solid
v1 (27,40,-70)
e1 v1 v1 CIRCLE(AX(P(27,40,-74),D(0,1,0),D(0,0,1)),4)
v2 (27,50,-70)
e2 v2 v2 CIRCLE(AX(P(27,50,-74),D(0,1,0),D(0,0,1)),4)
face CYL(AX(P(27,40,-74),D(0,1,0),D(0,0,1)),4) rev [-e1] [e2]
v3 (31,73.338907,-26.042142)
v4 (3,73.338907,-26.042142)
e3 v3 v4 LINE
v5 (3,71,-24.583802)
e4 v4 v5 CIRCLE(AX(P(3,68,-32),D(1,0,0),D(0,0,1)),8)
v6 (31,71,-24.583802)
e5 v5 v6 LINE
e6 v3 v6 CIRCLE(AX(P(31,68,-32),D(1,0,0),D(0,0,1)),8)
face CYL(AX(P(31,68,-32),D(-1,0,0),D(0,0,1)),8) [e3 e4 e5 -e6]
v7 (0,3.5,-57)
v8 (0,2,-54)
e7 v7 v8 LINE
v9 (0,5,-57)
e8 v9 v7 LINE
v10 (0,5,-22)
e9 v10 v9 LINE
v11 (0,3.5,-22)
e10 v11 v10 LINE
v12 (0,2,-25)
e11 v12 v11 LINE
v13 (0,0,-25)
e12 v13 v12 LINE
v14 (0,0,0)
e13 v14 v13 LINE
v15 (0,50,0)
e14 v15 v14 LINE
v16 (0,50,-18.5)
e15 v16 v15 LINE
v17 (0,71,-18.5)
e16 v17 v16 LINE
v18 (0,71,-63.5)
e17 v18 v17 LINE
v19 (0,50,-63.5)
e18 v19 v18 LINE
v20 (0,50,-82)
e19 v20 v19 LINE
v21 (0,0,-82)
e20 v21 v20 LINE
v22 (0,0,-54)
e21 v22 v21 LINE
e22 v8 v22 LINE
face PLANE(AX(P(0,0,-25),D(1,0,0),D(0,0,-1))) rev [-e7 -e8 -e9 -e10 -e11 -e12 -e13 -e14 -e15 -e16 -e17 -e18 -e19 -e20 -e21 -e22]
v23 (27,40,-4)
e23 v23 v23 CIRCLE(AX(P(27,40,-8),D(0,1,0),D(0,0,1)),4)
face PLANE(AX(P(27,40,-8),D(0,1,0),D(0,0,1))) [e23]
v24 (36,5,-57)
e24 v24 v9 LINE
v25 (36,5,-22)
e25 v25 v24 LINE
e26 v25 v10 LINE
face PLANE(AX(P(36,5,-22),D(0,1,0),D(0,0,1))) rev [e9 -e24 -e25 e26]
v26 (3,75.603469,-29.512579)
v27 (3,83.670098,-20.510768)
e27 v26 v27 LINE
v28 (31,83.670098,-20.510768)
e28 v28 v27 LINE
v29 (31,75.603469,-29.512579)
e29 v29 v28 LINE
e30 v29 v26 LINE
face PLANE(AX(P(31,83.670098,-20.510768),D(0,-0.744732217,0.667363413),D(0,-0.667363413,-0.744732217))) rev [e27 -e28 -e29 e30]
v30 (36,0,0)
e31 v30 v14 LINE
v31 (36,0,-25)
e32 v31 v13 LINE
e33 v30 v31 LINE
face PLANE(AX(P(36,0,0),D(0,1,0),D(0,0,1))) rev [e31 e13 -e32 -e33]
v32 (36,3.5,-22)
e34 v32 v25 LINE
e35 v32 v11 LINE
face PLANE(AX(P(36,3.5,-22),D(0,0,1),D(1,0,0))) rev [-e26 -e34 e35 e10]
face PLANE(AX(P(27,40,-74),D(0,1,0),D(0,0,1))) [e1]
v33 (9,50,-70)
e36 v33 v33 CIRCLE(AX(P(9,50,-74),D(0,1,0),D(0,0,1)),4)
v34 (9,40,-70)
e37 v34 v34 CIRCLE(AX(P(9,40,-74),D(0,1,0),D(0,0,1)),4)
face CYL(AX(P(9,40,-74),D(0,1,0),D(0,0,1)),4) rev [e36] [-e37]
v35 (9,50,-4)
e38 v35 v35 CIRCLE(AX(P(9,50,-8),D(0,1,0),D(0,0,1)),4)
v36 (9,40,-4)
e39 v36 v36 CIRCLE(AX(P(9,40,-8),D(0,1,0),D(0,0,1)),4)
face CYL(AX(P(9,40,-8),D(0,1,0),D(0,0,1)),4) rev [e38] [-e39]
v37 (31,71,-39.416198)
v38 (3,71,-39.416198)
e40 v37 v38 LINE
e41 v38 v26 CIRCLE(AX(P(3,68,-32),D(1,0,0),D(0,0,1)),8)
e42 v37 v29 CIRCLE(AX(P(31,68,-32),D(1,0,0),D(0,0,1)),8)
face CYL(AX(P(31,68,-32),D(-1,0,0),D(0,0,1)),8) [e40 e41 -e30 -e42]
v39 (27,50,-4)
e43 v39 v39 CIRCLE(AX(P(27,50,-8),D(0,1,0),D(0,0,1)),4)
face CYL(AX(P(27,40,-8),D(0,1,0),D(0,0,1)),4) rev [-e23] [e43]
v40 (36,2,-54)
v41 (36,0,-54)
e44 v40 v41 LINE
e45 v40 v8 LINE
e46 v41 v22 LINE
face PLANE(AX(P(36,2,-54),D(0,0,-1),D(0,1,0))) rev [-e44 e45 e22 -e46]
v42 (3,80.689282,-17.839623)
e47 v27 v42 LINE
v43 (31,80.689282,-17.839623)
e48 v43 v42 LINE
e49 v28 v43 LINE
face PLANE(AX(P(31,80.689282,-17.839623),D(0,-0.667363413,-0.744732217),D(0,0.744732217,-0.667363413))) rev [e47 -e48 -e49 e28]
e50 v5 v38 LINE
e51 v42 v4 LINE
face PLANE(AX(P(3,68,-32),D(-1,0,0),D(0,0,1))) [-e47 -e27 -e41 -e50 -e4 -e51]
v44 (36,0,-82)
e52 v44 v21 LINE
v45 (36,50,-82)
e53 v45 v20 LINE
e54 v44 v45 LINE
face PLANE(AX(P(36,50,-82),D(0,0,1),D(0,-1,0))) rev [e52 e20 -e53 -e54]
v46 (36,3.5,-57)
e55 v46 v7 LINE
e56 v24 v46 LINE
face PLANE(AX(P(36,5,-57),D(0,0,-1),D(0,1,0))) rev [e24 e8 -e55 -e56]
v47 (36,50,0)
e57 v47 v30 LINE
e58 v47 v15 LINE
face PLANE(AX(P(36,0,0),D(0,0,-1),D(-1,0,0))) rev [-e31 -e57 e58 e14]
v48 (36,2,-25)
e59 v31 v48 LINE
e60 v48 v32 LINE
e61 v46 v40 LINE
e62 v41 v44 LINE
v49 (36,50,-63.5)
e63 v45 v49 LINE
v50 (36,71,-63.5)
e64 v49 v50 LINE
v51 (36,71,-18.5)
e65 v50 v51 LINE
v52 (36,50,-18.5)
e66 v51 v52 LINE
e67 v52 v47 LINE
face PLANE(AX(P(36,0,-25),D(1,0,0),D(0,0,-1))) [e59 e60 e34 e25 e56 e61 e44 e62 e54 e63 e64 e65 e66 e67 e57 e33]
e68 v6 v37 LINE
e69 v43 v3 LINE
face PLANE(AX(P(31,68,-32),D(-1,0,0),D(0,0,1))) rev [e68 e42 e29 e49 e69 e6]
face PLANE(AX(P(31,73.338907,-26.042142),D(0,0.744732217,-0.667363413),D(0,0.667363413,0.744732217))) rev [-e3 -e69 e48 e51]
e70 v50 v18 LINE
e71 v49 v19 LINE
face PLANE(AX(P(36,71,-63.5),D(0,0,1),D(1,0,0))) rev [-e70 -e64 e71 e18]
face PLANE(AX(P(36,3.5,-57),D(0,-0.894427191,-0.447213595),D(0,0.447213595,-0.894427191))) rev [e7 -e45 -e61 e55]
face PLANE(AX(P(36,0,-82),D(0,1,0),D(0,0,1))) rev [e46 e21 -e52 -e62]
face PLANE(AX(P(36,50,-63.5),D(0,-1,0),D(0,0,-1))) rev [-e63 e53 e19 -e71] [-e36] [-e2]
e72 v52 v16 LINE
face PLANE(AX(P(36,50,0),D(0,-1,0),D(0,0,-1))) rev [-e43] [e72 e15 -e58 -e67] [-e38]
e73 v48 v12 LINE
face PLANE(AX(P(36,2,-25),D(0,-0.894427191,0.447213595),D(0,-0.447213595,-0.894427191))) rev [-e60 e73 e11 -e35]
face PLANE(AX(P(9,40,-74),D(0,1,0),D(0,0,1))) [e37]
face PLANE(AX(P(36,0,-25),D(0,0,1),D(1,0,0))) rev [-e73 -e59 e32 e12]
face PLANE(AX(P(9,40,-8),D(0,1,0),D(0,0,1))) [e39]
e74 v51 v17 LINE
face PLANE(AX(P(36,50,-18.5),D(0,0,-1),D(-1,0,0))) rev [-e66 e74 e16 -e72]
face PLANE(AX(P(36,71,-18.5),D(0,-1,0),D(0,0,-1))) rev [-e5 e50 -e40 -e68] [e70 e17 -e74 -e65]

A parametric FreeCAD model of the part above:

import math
import FreeCAD as App
import Part
import Sketcher
Q = App.Units.Quantity


def add_polygon(sketch, points):
    """Adds a closed chain of lines whose ends are joined by coincident constraints."""
    first, n = sketch.GeometryCount, len(points)
    for a, b in zip(points, points[1:] + points[:1]):
        sketch.addGeometry(Part.LineSegment(App.Vector(*a, 0), App.Vector(*b, 0)), False)
    for i in range(n):
        sketch.addConstraint(Sketcher.Constraint("Coincident", first + i, 2, first + (i + 1) % n, 1))

doc = App.newDocument("Part")
body = doc.addObject("PartDesign::Body", "Body")

sketch1 = body.newObject("Sketcher::SketchObject", "Sketch")
sketch1.AttachmentSupport = (doc.getObject("YZ_Plane"), [""])
sketch1.MapMode = "FlatFace"
add_polygon(sketch1, [(50, 0), (0, 0), (0, -25), (2, -25), (3.5, -22), (5, -22), (5, -57), (3.5, -57), (2, -54), (0, -54), (0, -82), (50, -82), (50, -63.5), (71, -63.5), (71, -18.5), (50, -18.5)])
sketch1.addConstraint([
    Sketcher.Constraint("Horizontal", 0),
    Sketcher.Constraint("Vertical", 1),
    Sketcher.Constraint("Horizontal", 2),
    Sketcher.Constraint("Horizontal", 4),
    Sketcher.Constraint("Vertical", 5),
    Sketcher.Constraint("Horizontal", 6),
    Sketcher.Constraint("Horizontal", 8),
    Sketcher.Constraint("Vertical", 9),
    Sketcher.Constraint("Horizontal", 10),
    Sketcher.Constraint("Vertical", 11),
    Sketcher.Constraint("Horizontal", 12),
    Sketcher.Constraint("Vertical", 13),
    Sketcher.Constraint("Horizontal", 14),
    Sketcher.Constraint("Vertical", 15),
    Sketcher.Constraint("Coincident", 0, 2, -1, 1),
    Sketcher.Constraint("PointOnObject", 8, 2, -2),
    Sketcher.Constraint("Vertical", 3, 2, 6, 2),
    Sketcher.Constraint("Vertical", 2, 2, 7, 2),
    Sketcher.Constraint("Vertical", 11, 2, 14, 2),
    Sketcher.Constraint("Equal", 11, 15),
    Sketcher.Constraint("Equal", 3, 7),
    Sketcher.Constraint("DistanceX", 0, 2, 0, 1, Q("50 mm")),
    Sketcher.Constraint("DistanceX", 2, 1, 2, 2, Q("2 mm")),
    Sketcher.Constraint("DistanceX", 12, 1, 12, 2, Q("21 mm")),
    Sketcher.Constraint("DistanceY", 1, 2, 1, 1, Q("25 mm")),
    Sketcher.Constraint("DistanceY", 5, 2, 5, 1, Q("35 mm")),
    Sketcher.Constraint("DistanceY", 9, 2, 9, 1, Q("28 mm")),
    Sketcher.Constraint("DistanceY", 13, 1, 13, 2, Q("45 mm")),
    Sketcher.Constraint("DistanceX", 4, 1, 4, 2, Q("1.5 mm")),
    Sketcher.Constraint("DistanceY", 11, 1, 11, 2, Q("18.5 mm")),
    Sketcher.Constraint("DistanceX", -1, 1, 4, 2, Q("5 mm")),
])
pad1 = body.newObject("PartDesign::Pad", "Pad")
pad1.Profile = sketch1
pad1.Length = 36

sketch2 = body.newObject("Sketcher::SketchObject", "Sketch001")
sketch2.AttachmentSupport = (doc.getObject("YZ_Plane"), [""])
sketch2.MapMode = "FlatFace"
sketch2.AttachmentOffset = App.Placement(App.Vector(0, 0, 3), App.Rotation())
sketch2.addGeometry([
    Part.LineSegment(App.Vector(80.7, -17.8, 0), App.Vector(73.3, -26, 0)),
    Part.ArcOfCircle(Part.Circle(App.Vector(68, -32, 0), App.Vector(0, 0, 1), 8), math.radians(48), math.radians(90)),
    Part.LineSegment(App.Vector(68, -24, 0), App.Vector(68, -40, 0)),
    Part.ArcOfCircle(Part.Circle(App.Vector(68, -32, 0), App.Vector(0, 0, 1), 8), math.radians(-90), math.radians(18)),
    Part.LineSegment(App.Vector(75.6, -29.5, 0), App.Vector(83.7, -20.5, 0)),
    Part.LineSegment(App.Vector(83.7, -20.5, 0), App.Vector(80.7, -17.8, 0)),
], False)
sketch2.addConstraint([
    Sketcher.Constraint("Coincident", 0, 2, 1, 1),
    Sketcher.Constraint("Coincident", 1, 2, 2, 1),
    Sketcher.Constraint("Coincident", 2, 2, 3, 1),
    Sketcher.Constraint("Coincident", 3, 2, 4, 1),
    Sketcher.Constraint("Coincident", 4, 2, 5, 1),
    Sketcher.Constraint("Coincident", 5, 2, 0, 1),
    Sketcher.Constraint("Vertical", 2),
    Sketcher.Constraint("Coincident", 3, 3, 1, 3),
    Sketcher.Constraint("Equal", 1, 3),
    Sketcher.Constraint("Parallel", 0, 4),
    Sketcher.Constraint("Perpendicular", 4, 5),
    Sketcher.Constraint("Vertical", 3, 3, 1, 2),
    Sketcher.Constraint("Radius", 1, Q("8 mm")),
    Sketcher.Constraint("DistanceX", -1, 1, 1, 3, Q("68 mm")),
    Sketcher.Constraint("DistanceY", 1, 3, -1, 1, Q("32 mm")),
    Sketcher.Constraint("DistanceX", -1, 1, 4, 2, Q("83.670098 mm")),
    Sketcher.Constraint("Distance", 0, Q("11.014051 mm")),
    Sketcher.Constraint("Distance", 4, Q("12.087312 mm")),
    Sketcher.Constraint("DistanceX", 0, 2, 3, 2, Q("2.264561 mm")),
])
pad2 = body.newObject("PartDesign::Pad", "Pad001")
pad2.Profile = sketch2
pad2.Length = 28

sketch3 = body.newObject("Sketcher::SketchObject", "Sketch002")
sketch3.AttachmentSupport = (doc.getObject("XZ_Plane"), [""])
sketch3.MapMode = "FlatFace"
sketch3.AttachmentOffset = App.Placement(App.Vector(0, 0, -50), App.Rotation())
sketch3.addGeometry([
    Part.Circle(App.Vector(9, -8, 0), App.Vector(0, 0, 1), 4),
    Part.Circle(App.Vector(27, -8, 0), App.Vector(0, 0, 1), 4),
    Part.Circle(App.Vector(45, -8, 0), App.Vector(0, 0, 1), 4),
    Part.Circle(App.Vector(63, -8, 0), App.Vector(0, 0, 1), 4),
    Part.Circle(App.Vector(9, -74, 0), App.Vector(0, 0, 1), 4),
    Part.Circle(App.Vector(27, -74, 0), App.Vector(0, 0, 1), 4),
    Part.Circle(App.Vector(45, -74, 0), App.Vector(0, 0, 1), 4),
    Part.Circle(App.Vector(63, -74, 0), App.Vector(0, 0, 1), 4),
], False)
sketch3.addConstraint([
    Sketcher.Constraint("Equal", 0, 1),
    Sketcher.Constraint("Equal", 1, 2),
    Sketcher.Constraint("Equal", 2, 3),
    Sketcher.Constraint("Equal", 3, 4),
    Sketcher.Constraint("Equal", 4, 5),
    Sketcher.Constraint("Equal", 5, 6),
    Sketcher.Constraint("Equal", 6, 7),
    Sketcher.Constraint("Horizontal", 0, 3, 1, 3),
    Sketcher.Constraint("Horizontal", 1, 3, 2, 3),
    Sketcher.Constraint("Horizontal", 2, 3, 3, 3),
    Sketcher.Constraint("Horizontal", 4, 3, 5, 3),
    Sketcher.Constraint("Horizontal", 5, 3, 6, 3),
    Sketcher.Constraint("Horizontal", 6, 3, 7, 3),
    Sketcher.Constraint("Vertical", 0, 3, 4, 3),
    Sketcher.Constraint("Vertical", 1, 3, 5, 3),
    Sketcher.Constraint("Vertical", 2, 3, 6, 3),
    Sketcher.Constraint("Vertical", 3, 3, 7, 3),
    Sketcher.Constraint("Diameter", 0, Q("8 mm")),
    Sketcher.Constraint("DistanceX", -1, 1, 0, 3, Q("9 mm")),
    Sketcher.Constraint("DistanceY", 0, 3, -1, 1, Q("8 mm")),
    Sketcher.Constraint("DistanceX", -1, 1, 1, 3, Q("27 mm")),
    Sketcher.Constraint("DistanceX", -1, 1, 2, 3, Q("45 mm")),
    Sketcher.Constraint("DistanceX", -1, 1, 3, 3, Q("63 mm")),
    Sketcher.Constraint("DistanceY", 4, 3, -1, 1, Q("74 mm")),
])
pocket1 = body.newObject("PartDesign::Pocket", "Pocket")
pocket1.Profile = sketch3
pocket1.Length = 10
pocket1.Reversed = True

doc.recompute()
